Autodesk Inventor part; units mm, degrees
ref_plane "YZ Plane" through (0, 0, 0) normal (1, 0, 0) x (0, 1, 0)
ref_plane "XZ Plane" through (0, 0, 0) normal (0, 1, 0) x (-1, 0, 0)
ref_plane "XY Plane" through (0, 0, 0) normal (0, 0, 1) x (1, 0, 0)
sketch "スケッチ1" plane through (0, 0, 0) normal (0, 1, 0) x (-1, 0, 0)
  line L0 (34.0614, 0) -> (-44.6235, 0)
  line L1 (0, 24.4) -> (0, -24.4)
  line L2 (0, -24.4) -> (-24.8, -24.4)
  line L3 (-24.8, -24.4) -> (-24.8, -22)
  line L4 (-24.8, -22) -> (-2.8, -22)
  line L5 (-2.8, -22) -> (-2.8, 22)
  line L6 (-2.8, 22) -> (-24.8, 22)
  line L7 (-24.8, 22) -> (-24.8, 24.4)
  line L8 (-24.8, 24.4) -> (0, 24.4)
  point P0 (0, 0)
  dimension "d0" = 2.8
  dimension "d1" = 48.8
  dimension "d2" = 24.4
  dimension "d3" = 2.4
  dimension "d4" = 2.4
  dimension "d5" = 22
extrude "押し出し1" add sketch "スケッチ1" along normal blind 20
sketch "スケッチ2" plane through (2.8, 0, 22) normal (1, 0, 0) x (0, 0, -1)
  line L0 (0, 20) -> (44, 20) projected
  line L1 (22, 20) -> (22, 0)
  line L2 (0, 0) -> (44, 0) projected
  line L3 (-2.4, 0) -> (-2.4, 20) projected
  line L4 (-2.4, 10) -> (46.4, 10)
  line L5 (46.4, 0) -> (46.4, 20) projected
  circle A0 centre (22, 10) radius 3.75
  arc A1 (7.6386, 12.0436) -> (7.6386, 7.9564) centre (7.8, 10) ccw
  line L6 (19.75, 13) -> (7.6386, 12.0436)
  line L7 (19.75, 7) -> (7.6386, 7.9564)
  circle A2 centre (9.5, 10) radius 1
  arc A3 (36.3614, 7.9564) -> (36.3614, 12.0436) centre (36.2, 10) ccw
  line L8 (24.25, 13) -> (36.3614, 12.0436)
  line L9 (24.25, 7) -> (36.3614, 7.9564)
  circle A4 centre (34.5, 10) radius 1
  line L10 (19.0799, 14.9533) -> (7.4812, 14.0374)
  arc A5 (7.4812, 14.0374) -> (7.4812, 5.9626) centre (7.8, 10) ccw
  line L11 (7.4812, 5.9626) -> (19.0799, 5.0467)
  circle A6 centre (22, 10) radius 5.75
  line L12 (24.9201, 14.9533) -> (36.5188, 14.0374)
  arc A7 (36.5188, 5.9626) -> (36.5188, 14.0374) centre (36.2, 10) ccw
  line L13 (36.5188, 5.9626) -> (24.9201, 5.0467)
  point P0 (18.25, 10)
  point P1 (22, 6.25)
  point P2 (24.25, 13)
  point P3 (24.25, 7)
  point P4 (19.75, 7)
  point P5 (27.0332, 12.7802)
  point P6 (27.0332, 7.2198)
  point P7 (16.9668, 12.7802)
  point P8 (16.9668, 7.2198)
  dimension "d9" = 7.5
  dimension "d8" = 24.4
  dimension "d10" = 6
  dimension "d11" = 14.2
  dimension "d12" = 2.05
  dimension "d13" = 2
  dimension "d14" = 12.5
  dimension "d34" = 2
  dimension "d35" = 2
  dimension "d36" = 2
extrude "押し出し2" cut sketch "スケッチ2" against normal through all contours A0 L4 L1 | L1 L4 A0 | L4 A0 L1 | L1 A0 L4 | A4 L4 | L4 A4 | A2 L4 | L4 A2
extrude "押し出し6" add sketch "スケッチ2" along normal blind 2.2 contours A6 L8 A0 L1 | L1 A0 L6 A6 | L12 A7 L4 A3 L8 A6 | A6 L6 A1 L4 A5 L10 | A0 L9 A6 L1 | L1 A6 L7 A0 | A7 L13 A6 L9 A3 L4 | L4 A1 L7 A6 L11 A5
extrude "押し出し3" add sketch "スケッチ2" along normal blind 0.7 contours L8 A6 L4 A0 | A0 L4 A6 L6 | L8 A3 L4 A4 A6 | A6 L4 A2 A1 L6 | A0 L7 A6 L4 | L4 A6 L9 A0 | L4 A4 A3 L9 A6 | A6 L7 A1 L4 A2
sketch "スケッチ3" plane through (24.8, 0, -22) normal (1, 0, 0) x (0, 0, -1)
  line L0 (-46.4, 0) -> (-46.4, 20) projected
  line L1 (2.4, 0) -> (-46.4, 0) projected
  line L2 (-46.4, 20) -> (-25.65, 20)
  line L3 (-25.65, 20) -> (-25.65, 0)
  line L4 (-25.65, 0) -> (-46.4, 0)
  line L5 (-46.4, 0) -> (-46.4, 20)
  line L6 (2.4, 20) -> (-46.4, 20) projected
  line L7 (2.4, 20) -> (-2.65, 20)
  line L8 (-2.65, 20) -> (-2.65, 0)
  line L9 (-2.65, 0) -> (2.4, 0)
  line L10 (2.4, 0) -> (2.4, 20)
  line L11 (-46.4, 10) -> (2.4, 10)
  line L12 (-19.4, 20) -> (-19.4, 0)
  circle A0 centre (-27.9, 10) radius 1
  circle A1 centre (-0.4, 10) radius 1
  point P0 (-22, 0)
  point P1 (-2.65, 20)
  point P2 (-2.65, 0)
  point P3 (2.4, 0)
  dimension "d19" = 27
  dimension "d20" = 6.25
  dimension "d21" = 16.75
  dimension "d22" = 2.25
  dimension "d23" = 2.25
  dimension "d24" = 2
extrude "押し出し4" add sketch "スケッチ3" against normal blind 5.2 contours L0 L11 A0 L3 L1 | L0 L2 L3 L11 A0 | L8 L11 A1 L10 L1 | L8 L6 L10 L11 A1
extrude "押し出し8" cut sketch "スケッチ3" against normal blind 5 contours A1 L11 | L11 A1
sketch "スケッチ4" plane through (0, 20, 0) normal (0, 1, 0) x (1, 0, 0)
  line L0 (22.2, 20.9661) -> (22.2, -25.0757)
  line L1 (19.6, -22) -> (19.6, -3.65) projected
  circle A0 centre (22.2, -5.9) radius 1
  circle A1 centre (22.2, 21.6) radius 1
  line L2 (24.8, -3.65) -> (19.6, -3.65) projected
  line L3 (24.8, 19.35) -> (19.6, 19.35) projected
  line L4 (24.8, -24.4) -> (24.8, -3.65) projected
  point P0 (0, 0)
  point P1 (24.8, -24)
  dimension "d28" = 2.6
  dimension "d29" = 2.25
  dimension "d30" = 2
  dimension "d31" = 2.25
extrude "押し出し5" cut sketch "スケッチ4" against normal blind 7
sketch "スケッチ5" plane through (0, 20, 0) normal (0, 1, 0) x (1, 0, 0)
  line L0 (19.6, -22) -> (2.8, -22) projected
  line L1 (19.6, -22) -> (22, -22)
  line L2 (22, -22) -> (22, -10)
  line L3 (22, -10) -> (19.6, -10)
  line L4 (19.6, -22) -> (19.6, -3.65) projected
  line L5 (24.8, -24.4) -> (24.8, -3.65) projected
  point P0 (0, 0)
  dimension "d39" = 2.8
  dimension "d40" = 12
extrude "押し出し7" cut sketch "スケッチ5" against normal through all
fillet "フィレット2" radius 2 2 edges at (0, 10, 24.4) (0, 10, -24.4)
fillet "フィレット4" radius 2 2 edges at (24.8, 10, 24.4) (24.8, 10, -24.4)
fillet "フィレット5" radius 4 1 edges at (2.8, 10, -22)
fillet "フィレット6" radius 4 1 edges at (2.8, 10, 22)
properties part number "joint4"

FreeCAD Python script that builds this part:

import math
import FreeCAD as App
import Part
import Sketcher
Q = App.Units.Quantity


def edges_at(feature, points):
    """Names of the edges that pass closest to the given points."""
    edges = feature.Shape.Edges
    near = lambda p: min(range(len(edges)), key=lambda i: edges[i].distToShape(Part.Vertex(*p))[0])
    return sorted({f"Edge{near(p) + 1}" for p in points})


def add_polygon(sketch, points):
    """Adds a closed chain of lines whose ends are joined by coincident constraints."""
    first, n = sketch.GeometryCount, len(points)
    for a, b in zip(points, points[1:] + points[:1]):
        sketch.addGeometry(Part.LineSegment(App.Vector(*a, 0), App.Vector(*b, 0)), False)
    for i in range(n):
        sketch.addConstraint(Sketcher.Constraint("Coincident", first + i, 2, first + (i + 1) % n, 1))

doc = App.newDocument("Part")
body = doc.addObject("PartDesign::Body", "Body")

sketch1 = body.newObject("Sketcher::SketchObject", "Sketch")
sketch1.AttachmentSupport = (doc.getObject("XZ_Plane"), [""])
sketch1.MapMode = "FlatFace"
add_polygon(sketch1, [(0, -24.4), (0, 24.4), (24.8, 24.4), (24.8, 22), (2.8, 22), (2.8, -22), (24.8, -22), (24.8, -24.4)])
sketch1.addConstraint([
    Sketcher.Constraint("Vertical", 0),
    Sketcher.Constraint("Horizontal", 1),
    Sketcher.Constraint("Vertical", 2),
    Sketcher.Constraint("Horizontal", 3),
    Sketcher.Constraint("Vertical", 4),
    Sketcher.Constraint("Horizontal", 5),
    Sketcher.Constraint("Vertical", 6),
    Sketcher.Constraint("Horizontal", 7),
    Sketcher.Constraint("Symmetric", 0, 2, 7, 2, -1, 1),
    Sketcher.Constraint("Symmetric", 2, 2, 5, 2, -1),
    Sketcher.Constraint("DistanceX", 3, 2, 3, 1, Q("22 mm")),
    Sketcher.Constraint("DistanceY", 0, 1, 0, 2, Q("48.8 mm")),
    Sketcher.Constraint("DistanceY", 2, 2, 2, 1, Q("2.4 mm")),
    Sketcher.Constraint("DistanceX", -1, 1, 3, 2, Q("2.8 mm")),
])
pad1 = body.newObject("PartDesign::Pad", "Pad")
pad1.Profile = sketch1
pad1.Length = 20
pad1.Reversed = True

sketch2 = body.newObject("Sketcher::SketchObject", "Sketch001")
sketch2.AttachmentSupport = (doc.getObject("YZ_Plane"), [""])
sketch2.MapMode = "FlatFace"
sketch2.AttachmentOffset = App.Placement(App.Vector(0, 0, 2.8), App.Rotation())
sketch2.addGeometry([
    Part.Circle(App.Vector(10, 0, 0), App.Vector(0, 0, 1), 3.75),
    Part.Circle(App.Vector(10, -12.5, 0), App.Vector(0, 0, 1), 1),
    Part.Circle(App.Vector(10, 12.5, 0), App.Vector(0, 0, 1), 1),
], False)
sketch2.addConstraint([
    Sketcher.Constraint("Equal", 1, 2),
    Sketcher.Constraint("Symmetric", 1, 3, 2, 3, -1),
    Sketcher.Constraint("PointOnObject", 0, 3, -1),
    Sketcher.Constraint("Vertical", 0, 3, 1, 3),
    Sketcher.Constraint("Diameter", 1, Q("2 mm")),
    Sketcher.Constraint("Diameter", 0, Q("7.5 mm")),
    Sketcher.Constraint("DistanceY", 1, 3, -1, 1, Q("12.5 mm")),
    Sketcher.Constraint("DistanceX", -1, 1, 0, 3, Q("10 mm")),
])
pocket1 = body.newObject("PartDesign::Pocket", "Pocket")
pocket1.Profile = sketch2
pocket1.Type = "ThroughAll"

sketch3 = body.newObject("Sketcher::SketchObject", "Sketch002")
sketch3.AttachmentSupport = (doc.getObject("YZ_Plane"), [""])
sketch3.MapMode = "FlatFace"
sketch3.AttachmentOffset = App.Placement(App.Vector(0, 0, 2.8), App.Rotation())
sketch3.addGeometry([
    Part.ArcOfCircle(Part.Circle(App.Vector(10, 0, 0), App.Vector(0, 0, 1), 5.75), math.radians(-30.520463), math.radians(30.520463)),
    Part.LineSegment(App.Vector(14.9533, 2.9201, 0), App.Vector(14.0374, 14.5188, 0)),
    Part.ArcOfCircle(Part.Circle(App.Vector(10, 14.2, 0), App.Vector(0, 0, 1), 4.049967), math.radians(4.514805), math.radians(175.485195)),
    Part.LineSegment(App.Vector(5.9626, 14.5188, 0), App.Vector(5.0467, 2.9201, 0)),
    Part.ArcOfCircle(Part.Circle(App.Vector(10, 0, 0), App.Vector(0, 0, 1), 5.75), math.radians(149.479537), math.radians(210.520463)),
    Part.LineSegment(App.Vector(5.0467, -2.9201, 0), App.Vector(5.9626, -14.5188, 0)),
    Part.ArcOfCircle(Part.Circle(App.Vector(10, -14.2, 0), App.Vector(0, 0, 1), 4.049967), math.radians(-175.485195), math.radians(-4.514805)),
    Part.LineSegment(App.Vector(14.0374, -14.5188, 0), App.Vector(14.9533, -2.9201, 0)),
    Part.LineSegment(App.Vector(13, -2.25, 0), App.Vector(12.0436, -14.3614, 0)),
    Part.ArcOfCircle(Part.Circle(App.Vector(10, -14.2, 0), App.Vector(0, 0, 1), 2.049964), math.radians(-175.484252), math.radians(-4.515748)),
    Part.LineSegment(App.Vector(7.9564, -14.3614, 0), App.Vector(7, -2.25, 0)),
    Part.ArcOfCircle(Part.Circle(App.Vector(10, 0, 0), App.Vector(0, 0, 1), 3.75), math.radians(143.130102), math.radians(216.869898)),
    Part.LineSegment(App.Vector(7, 2.25, 0), App.Vector(7.9564, 14.3614, 0)),
    Part.ArcOfCircle(Part.Circle(App.Vector(10, 14.2, 0), App.Vector(0, 0, 1), 2.049964), math.radians(4.515748), math.radians(175.484252)),
    Part.LineSegment(App.Vector(12.0436, 14.3614, 0), App.Vector(13, 2.25, 0)),
    Part.ArcOfCircle(Part.Circle(App.Vector(10, 0, 0), App.Vector(0, 0, 1), 3.75), math.radians(-36.869898), math.radians(36.869898)),
], False)
sketch3.addConstraint([
    Sketcher.Constraint("Coincident", 0, 2, 1, 1),
    Sketcher.Constraint("Tangent", 1, 2, 2, 1),
    Sketcher.Constraint("Tangent", 2, 2, 3, 1),
    Sketcher.Constraint("Coincident", 3, 2, 4, 1),
    Sketcher.Constraint("Coincident", 4, 2, 5, 1),
    Sketcher.Constraint("Tangent", 5, 2, 6, 1),
    Sketcher.Constraint("Tangent", 6, 2, 7, 1),
    Sketcher.Constraint("Coincident", 7, 2, 0, 1),
    Sketcher.Constraint("Tangent", 8, 2, 9, 2),
    Sketcher.Constraint("Tangent", 9, 1, 10, 1),
    Sketcher.Constraint("Coincident", 10, 2, 11, 2),
    Sketcher.Constraint("Coincident", 11, 1, 12, 1),
    Sketcher.Constraint("Tangent", 12, 2, 13, 2),
    Sketcher.Constraint("Tangent", 13, 1, 14, 1),
    Sketcher.Constraint("Coincident", 14, 2, 15, 2),
    Sketcher.Constraint("Coincident", 15, 1, 8, 1),
    Sketcher.Constraint("Coincident", 4, 3, 0, 3),
    Sketcher.Constraint("Coincident", 9, 3, 6, 3),
    Sketcher.Constraint("Coincident", 11, 3, 0, 3),
    Sketcher.Constraint("Coincident", 13, 3, 2, 3),
    Sketcher.Constraint("Coincident", 15, 3, 0, 3),
    Sketcher.Constraint("Equal", 0, 4),
    Sketcher.Constraint("Equal", 2, 6),
    Sketcher.Constraint("Equal", 9, 13),
    Sketcher.Constraint("Equal", 11, 15),
    Sketcher.Constraint("Symmetric", 2, 3, 6, 3, -1),
    Sketcher.Constraint("Symmetric", 3, 2, 4, 2, -1),
    Sketcher.Constraint("Parallel", 1, 5),
    Sketcher.Constraint("Parallel", 3, 7),
    Sketcher.Constraint("Parallel", 7, 8),
    Sketcher.Constraint("Parallel", 5, 10),
    Sketcher.Constraint("Parallel", 8, 12),
    Sketcher.Constraint("Parallel", 10, 14),
    Sketcher.Constraint("Horizontal", 0, 2, 3, 2),
    Sketcher.Constraint("Radius", 9, Q("2.05 mm")),
    Sketcher.Constraint("Radius", 11, Q("3.75 mm")),
    Sketcher.Constraint("DistanceY", -1, 1, 2, 3, Q("14.2 mm")),
    Sketcher.Constraint("Radius", 0, Q("5.75 mm")),
    Sketcher.Constraint("Radius", 2, Q("4.05 mm")),
    Sketcher.Constraint("DistanceX", -1, 1, 0, 3, Q("10 mm")),
    Sketcher.Constraint("DistanceX", -1, 1, 10, 2, Q("7 mm")),
])
pad2 = body.newObject("PartDesign::Pad", "Pad001")
pad2.Profile = sketch3
pad2.Length = 2.2

sketch4 = body.newObject("Sketcher::SketchObject", "Sketch003")
sketch4.AttachmentSupport = (doc.getObject("YZ_Plane"), [""])
sketch4.MapMode = "FlatFace"
sketch4.AttachmentOffset = App.Placement(App.Vector(0, 0, 2.8), App.Rotation())
sketch4.addGeometry([
    Part.ArcOfCircle(Part.Circle(App.Vector(10, 0, 0), App.Vector(0, 0, 1), 3.75), math.radians(-143.130102), math.radians(-36.869898)),
    Part.LineSegment(App.Vector(7, -2.25, 0), App.Vector(7.9564, -14.3614, 0)),
    Part.ArcOfCircle(Part.Circle(App.Vector(10, -14.2, 0), App.Vector(0, 0, 1), 2.049964), math.radians(-175.484252), math.radians(-4.515748)),
    Part.LineSegment(App.Vector(12.0436, -14.3614, 0), App.Vector(13, -2.25, 0)),
    Part.Circle(App.Vector(10, -12.5, 0), App.Vector(0, 0, 1), 1),
    Part.LineSegment(App.Vector(13, 2.25, 0), App.Vector(12.0436, 14.3614, 0)),
    Part.ArcOfCircle(Part.Circle(App.Vector(10, 14.2, 0), App.Vector(0, 0, 1), 2.049964), math.radians(4.515748), math.radians(175.484252)),
    Part.LineSegment(App.Vector(7.9564, 14.3614, 0), App.Vector(7, 2.25, 0)),
    Part.ArcOfCircle(Part.Circle(App.Vector(10, 0, 0), App.Vector(0, 0, 1), 3.75), math.radians(36.869898), math.radians(143.130102)),
    Part.Circle(App.Vector(10, 12.5, 0), App.Vector(0, 0, 1), 1),
], False)
sketch4.addConstraint([
    Sketcher.Constraint("Coincident", 0, 1, 1, 1),
    Sketcher.Constraint("Tangent", 1, 2, 2, 1),
    Sketcher.Constraint("Tangent", 2, 2, 3, 1),
    Sketcher.Constraint("Coincident", 3, 2, 0, 2),
    Sketcher.Constraint("Tangent", 5, 2, 6, 1),
    Sketcher.Constraint("Tangent", 6, 2, 7, 1),
    Sketcher.Constraint("Coincident", 7, 2, 8, 2),
    Sketcher.Constraint("Coincident", 8, 1, 5, 1),
    Sketcher.Constraint("Coincident", 8, 3, 0, 3),
    Sketcher.Constraint("Equal", 2, 6),
    Sketcher.Constraint("Equal", 0, 8),
    Sketcher.Constraint("Equal", 4, 9),
    Sketcher.Constraint("Symmetric", 2, 3, 6, 3, -1),
    Sketcher.Constraint("Symmetric", 4, 3, 9, 3, -1),
    Sketcher.Constraint("Symmetric", 0, 1, 7, 2, -1),
    Sketcher.Constraint("Parallel", 1, 5),
    Sketcher.Constraint("Parallel", 3, 7),
    Sketcher.Constraint("Horizontal", 0, 1, 3, 2),
    Sketcher.Constraint("Vertical", 2, 3, 4, 3),
    Sketcher.Constraint("Diameter", 4, Q("2 mm")),
    Sketcher.Constraint("Radius", 0, Q("3.75 mm")),
    Sketcher.Constraint("Radius", 2, Q("2.05 mm")),
    Sketcher.Constraint("DistanceX", 0, 1, 3, 2, Q("6 mm")),
    Sketcher.Constraint("DistanceY", 2, 3, -1, 1, Q("14.2 mm")),
    Sketcher.Constraint("DistanceY", 4, 3, -1, 1, Q("12.5 mm")),
    Sketcher.Constraint("DistanceX", -1, 1, 0, 3, Q("10 mm")),
])
pad3 = body.newObject("PartDesign::Pad", "Pad002")
pad3.Profile = sketch4
pad3.Length = 0.7

sketch5 = body.newObject("Sketcher::SketchObject", "Sketch004")
sketch5.AttachmentSupport = (doc.getObject("YZ_Plane"), [""])
sketch5.MapMode = "FlatFace"
sketch5.AttachmentOffset = App.Placement(App.Vector(0, 0, 24.8), App.Rotation())
add_polygon(sketch5, [(0, 24.4), (0, 3.65), (20, 3.65), (20, 24.4)])
sketch5.addGeometry(Part.Circle(App.Vector(10, 5.9, 0), App.Vector(0, 0, 1), 1), False)
add_polygon(sketch5, [(0, -19.35), (0, -24.4), (20, -24.4), (20, -19.35)])
sketch5.addGeometry(Part.Circle(App.Vector(10, -21.6, 0), App.Vector(0, 0, 1), 1), False)
sketch5.addConstraint([
    Sketcher.Constraint("Vertical", 0),
    Sketcher.Constraint("Horizontal", 1),
    Sketcher.Constraint("Vertical", 2),
    Sketcher.Constraint("Horizontal", 3),
    Sketcher.Constraint("Vertical", 5),
    Sketcher.Constraint("Horizontal", 6),
    Sketcher.Constraint("Vertical", 7),
    Sketcher.Constraint("Horizontal", 8),
    Sketcher.Constraint("Equal", 4, 9),
    Sketcher.Constraint("Symmetric", 3, 2, 5, 2, -1, 1),
    Sketcher.Constraint("PointOnObject", 0, 2, -2),
    Sketcher.Constraint("Vertical", 4, 3, 9, 3),
    Sketcher.Constraint("Vertical", 2, 2, 6, 2),
    Sketcher.Constraint("Diameter", 4, Q("2 mm")),
    Sketcher.Constraint("DistanceX", 1, 1, 1, 2, Q("20 mm")),
    Sketcher.Constraint("DistanceY", 0, 2, 4, 3, Q("2.25 mm")),
    Sketcher.Constraint("DistanceY", 9, 3, 7, 2, Q("2.25 mm")),
    Sketcher.Constraint("DistanceX", -1, 1, 4, 3, Q("10 mm")),
    Sketcher.Constraint("DistanceY", 9, 3, 2, 2, Q("46 mm")),
    Sketcher.Constraint("DistanceY", 7, 2, 1, 2, Q("23 mm")),
    Sketcher.Constraint("DistanceY", 5, 2, 5, 1, Q("5.05 mm")),
])
pad4 = body.newObject("PartDesign::Pad", "Pad003")
pad4.Profile = sketch5
pad4.Length = 5.2
pad4.Reversed = True

sketch6 = body.newObject("Sketcher::SketchObject", "Sketch005")
sketch6.AttachmentSupport = (doc.getObject("YZ_Plane"), [""])
sketch6.MapMode = "FlatFace"
sketch6.AttachmentOffset = App.Placement(App.Vector(0, 0, 24.8), App.Rotation())
sketch6.addGeometry(Part.Circle(App.Vector(10, -21.6, 0), App.Vector(0, 0, 1), 1), False)
sketch6.addConstraint([
    Sketcher.Constraint("Diameter", 0, Q("2 mm")),
    Sketcher.Constraint("DistanceX", -1, 1, 0, 3, Q("10 mm")),
    Sketcher.Constraint("DistanceY", 0, 3, -1, 1, Q("21.6 mm")),
])
pocket2 = body.newObject("PartDesign::Pocket", "Pocket001")
pocket2.Profile = sketch6
pocket2.Length = 5

sketch7 = body.newObject("Sketcher::SketchObject", "Sketch006")
sketch7.AttachmentSupport = (doc.getObject("XZ_Plane"), [""])
sketch7.MapMode = "FlatFace"
sketch7.AttachmentOffset = App.Placement(App.Vector(0, 0, -20), App.Rotation())
sketch7.addGeometry([
    Part.Circle(App.Vector(22.2, 5.9, 0), App.Vector(0, 0, 1), 1),
    Part.Circle(App.Vector(22.2, -21.6, 0), App.Vector(0, 0, 1), 1),
], False)
sketch7.addConstraint([
    Sketcher.Constraint("Equal", 0, 1),
    Sketcher.Constraint("Vertical", 0, 3, 1, 3),
    Sketcher.Constraint("Diameter", 0, Q("2 mm")),
    Sketcher.Constraint("DistanceX", -1, 1, 0, 3, Q("22.2 mm")),
    Sketcher.Constraint("DistanceY", -1, 1, 0, 3, Q("5.9 mm")),
    Sketcher.Constraint("DistanceY", 1, 3, -1, 1, Q("21.6 mm")),
])
pocket3 = body.newObject("PartDesign::Pocket", "Pocket002")
pocket3.Profile = sketch7
pocket3.Length = 7
pocket3.Reversed = True

sketch8 = body.newObject("Sketcher::SketchObject", "Sketch007")
sketch8.AttachmentSupport = (doc.getObject("XZ_Plane"), [""])
sketch8.MapMode = "FlatFace"
sketch8.AttachmentOffset = App.Placement(App.Vector(0, 0, -20), App.Rotation())
add_polygon(sketch8, [(19.6, 10), (19.6, 22), (22, 22), (22, 10)])
sketch8.addConstraint([
    Sketcher.Constraint("Vertical", 0),
    Sketcher.Constraint("Horizontal", 1),
    Sketcher.Constraint("Vertical", 2),
    Sketcher.Constraint("Horizontal", 3),
    Sketcher.Constraint("DistanceY", 0, 1, 0, 2, Q("12 mm")),
    Sketcher.Constraint("DistanceX", 1, 1, 1, 2, Q("2.4 mm")),
    Sketcher.Constraint("DistanceY", -1, 1, 0, 2, Q("22 mm")),
    Sketcher.Constraint("DistanceX", -1, 1, 1, 2, Q("22 mm")),
])
pocket4 = body.newObject("PartDesign::Pocket", "Pocket003")
pocket4.Profile = sketch8
pocket4.Type = "ThroughAll"
pocket4.Reversed = True
doc.recompute()

fillet = body.newObject("PartDesign::Fillet", "Fillet")
fillet.Base = (pocket4, edges_at(pocket4, [(0, 10, 24.4), (0, 10, -24.4)]))
fillet.Radius = 2
doc.recompute()

fillet2 = body.newObject("PartDesign::Fillet", "Fillet001")
fillet2.Base = (fillet, edges_at(fillet, [(24.8, 10, 24.4), (24.8, 10, -24.4)]))
fillet2.Radius = 2
doc.recompute()

fillet3 = body.newObject("PartDesign::Fillet", "Fillet002")
fillet3.Base = (fillet2, edges_at(fillet2, [(2.8, 10, -22)]))
fillet3.Radius = 4
doc.recompute()

fillet4 = body.newObject("PartDesign::Fillet", "Fillet003")
fillet4.Base = (fillet3, edges_at(fillet3, [(2.8, 10, 22)]))
fillet4.Radius = 4

doc.recompute()
